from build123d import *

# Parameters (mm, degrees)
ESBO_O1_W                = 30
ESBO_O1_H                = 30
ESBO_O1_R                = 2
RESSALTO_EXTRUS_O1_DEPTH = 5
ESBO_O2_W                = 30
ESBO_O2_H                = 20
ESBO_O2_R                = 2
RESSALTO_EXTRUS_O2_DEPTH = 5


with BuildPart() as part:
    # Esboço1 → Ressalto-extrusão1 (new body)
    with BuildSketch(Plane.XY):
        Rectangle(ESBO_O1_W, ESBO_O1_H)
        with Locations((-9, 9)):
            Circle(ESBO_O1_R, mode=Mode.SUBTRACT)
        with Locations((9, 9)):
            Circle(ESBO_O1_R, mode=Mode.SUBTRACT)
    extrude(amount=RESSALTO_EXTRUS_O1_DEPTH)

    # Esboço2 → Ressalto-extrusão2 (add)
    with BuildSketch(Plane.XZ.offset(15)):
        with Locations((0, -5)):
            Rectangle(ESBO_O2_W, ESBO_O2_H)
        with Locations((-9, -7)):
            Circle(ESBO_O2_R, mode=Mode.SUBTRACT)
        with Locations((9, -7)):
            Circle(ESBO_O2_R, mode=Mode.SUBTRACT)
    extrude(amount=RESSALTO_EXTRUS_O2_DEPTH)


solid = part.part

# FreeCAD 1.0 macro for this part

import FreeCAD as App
import Part
import Sketcher


def add_polygon(sketch, points):
    """Adds a closed chain of lines whose ends are joined by coincident constraints."""
    first, n = sketch.GeometryCount, len(points)
    for a, b in zip(points, points[1:] + points[:1]):
        sketch.addGeometry(Part.LineSegment(App.Vector(*a, 0), App.Vector(*b, 0)), False)
    for i in range(n):
        sketch.addConstraint(Sketcher.Constraint("Coincident", first + i, 2, first + (i + 1) % n, 1))

doc = App.newDocument("Part")
body = doc.addObject("PartDesign::Body", "Body")

# Sketch on XY plane
sketch1 = body.newObject("Sketcher::SketchObject", "Sketch")
sketch1.AttachmentSupport = (doc.getObject("XY_Plane"), [""])
sketch1.MapMode = "FlatFace"
add_polygon(sketch1, [(-15, 15), (-15, -15), (15, -15), (15, 15)])  # lines 0-3
sketch1.addGeometry(Part.Circle(App.Vector(-9, 9, 0), App.Vector(0, 0, 1), 2), False)  # 4
sketch1.addGeometry(Part.Circle(App.Vector(9, 9, 0), App.Vector(0, 0, 1), 2), False)  # 5
sketch1.addConstraint([
    Sketcher.Constraint("Vertical", 0),
    Sketcher.Constraint("Horizontal", 1),
    Sketcher.Constraint("Vertical", 2),
    Sketcher.Constraint("Horizontal", 3),
    Sketcher.Constraint("Equal", 4, 5),
    Sketcher.Constraint("Symmetric", 0, 2, 2, 2, -1, 1),
    Sketcher.Constraint("Symmetric", 4, 3, 5, 3, -2),
    Sketcher.Constraint("Equal", 3, 0),
    Sketcher.Constraint("Diameter", 4, 4.0),
    Sketcher.Constraint("DistanceX", 1, 1, 1, 2, 30.0),
    Sketcher.Constraint("DistanceX", 4, 3, -1, 1, 9.0),
    Sketcher.Constraint("DistanceY", -1, 1, 4, 3, 9.0),
])
pad1 = body.newObject("PartDesign::Pad", "Pad")
pad1.Profile = sketch1
pad1.Length = 5

# Sketch on XZ plane
sketch2 = body.newObject("Sketcher::SketchObject", "Sketch001")
sketch2.AttachmentSupport = (doc.getObject("XZ_Plane"), [""])
sketch2.MapMode = "FlatFace"
sketch2.AttachmentOffset = App.Placement(App.Vector(0, 0, 15), App.Rotation())
add_polygon(sketch2, [(-15, 5), (-15, -15), (15, -15), (15, 5)])  # lines 0-3
sketch2.addGeometry(Part.Circle(App.Vector(-9, -7, 0), App.Vector(0, 0, 1), 2), False)  # 4
sketch2.addGeometry(Part.Circle(App.Vector(9, -7, 0), App.Vector(0, 0, 1), 2), False)  # 5
sketch2.addConstraint([
    Sketcher.Constraint("Vertical", 0),
    Sketcher.Constraint("Horizontal", 1),
    Sketcher.Constraint("Vertical", 2),
    Sketcher.Constraint("Horizontal", 3),
    Sketcher.Constraint("Equal", 4, 5),
    Sketcher.Constraint("Symmetric", 4, 3, 5, 3, -2),
    Sketcher.Constraint("Diameter", 4, 4.0),
    Sketcher.Constraint("DistanceX", 1, 1, 1, 2, 30.0),
    Sketcher.Constraint("DistanceY", 0, 2, 0, 1, 20.0),
    Sketcher.Constraint("DistanceX", 4, 3, -1, 1, 9.0),
    Sketcher.Constraint("DistanceY", 4, 3, -1, 1, 7.0),
    Sketcher.Constraint("DistanceX", 0, 2, -1, 1, 15.0),
    Sketcher.Constraint("DistanceY", 0, 2, -1, 1, 15.0),
])
pad2 = body.newObject("PartDesign::Pad", "Pad001")
pad2.Profile = sketch2
pad2.Length = 5

doc.recompute()
